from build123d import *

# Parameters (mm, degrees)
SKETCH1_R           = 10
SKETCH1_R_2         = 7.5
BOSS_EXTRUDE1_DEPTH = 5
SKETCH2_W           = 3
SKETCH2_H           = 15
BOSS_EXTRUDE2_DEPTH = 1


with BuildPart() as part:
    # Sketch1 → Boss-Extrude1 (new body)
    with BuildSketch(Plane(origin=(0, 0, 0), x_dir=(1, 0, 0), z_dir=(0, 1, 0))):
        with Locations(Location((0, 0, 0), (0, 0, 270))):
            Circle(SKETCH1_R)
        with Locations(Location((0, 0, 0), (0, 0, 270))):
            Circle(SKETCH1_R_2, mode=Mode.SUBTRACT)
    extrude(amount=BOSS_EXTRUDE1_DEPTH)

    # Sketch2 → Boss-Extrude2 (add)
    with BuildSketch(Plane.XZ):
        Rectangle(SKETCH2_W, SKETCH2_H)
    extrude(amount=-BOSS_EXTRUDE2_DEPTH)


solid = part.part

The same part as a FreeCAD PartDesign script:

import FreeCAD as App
import Part
import Sketcher
from FreeCAD import Vector
Q = App.Units.Quantity


def add_polygon(sketch, points):
    """Adds a closed chain of lines whose ends are joined by coincident constraints."""
    first, n = sketch.GeometryCount, len(points)
    for a, b in zip(points, points[1:] + points[:1]):
        sketch.addGeometry(Part.LineSegment(App.Vector(*a, 0), App.Vector(*b, 0)), False)
    for i in range(n):
        sketch.addConstraint(Sketcher.Constraint("Coincident", first + i, 2, first + (i + 1) % n, 1))

doc = App.newDocument("Part")
body = doc.addObject("PartDesign::Body", "Body")

# Sketch on XZ plane
sketch1 = doc.addObject("Sketcher::SketchObject", "Sketch")
body.addObject(sketch1)
sketch1.AttachmentSupport = (doc.XZ_Plane, [""])
sketch1.MapMode = "FlatFace"
sketch1.addGeometry([
    Part.Circle(Vector(0, 0, 0), Vector(0, 0, 1), 10),
    Part.Circle(Vector(0, 0, 0), Vector(0, 0, 1), 7.5),
], False)
sketch1.addConstraint([
    Sketcher.Constraint("Coincident", 0, 3, -1, 1),
    Sketcher.Constraint("Coincident", 1, 3, -1, 1),
    Sketcher.Constraint("Diameter", 0, Q("20 mm")),
    Sketcher.Constraint("Diameter", 1, Q("15 mm")),
])
pad1 = doc.addObject("PartDesign::Pad", "Pad")
body.addObject(pad1)
pad1.Profile = sketch1
pad1.Length = 5
pad1.Reversed = True

# Sketch on XZ plane
sketch2 = doc.addObject("Sketcher::SketchObject", "Sketch001")
body.addObject(sketch2)
sketch2.AttachmentSupport = (doc.XZ_Plane, [""])
sketch2.MapMode = "FlatFace"
add_polygon(sketch2, [(-1.5, 7.5), (-1.5, -7.5), (1.5, -7.5), (1.5, 7.5)])  # lines 0-3
sketch2.addConstraint([
    Sketcher.Constraint("Vertical", 0),
    Sketcher.Constraint("Horizontal", 1),
    Sketcher.Constraint("Vertical", 2),
    Sketcher.Constraint("Horizontal", 3),
    Sketcher.Constraint("Symmetric", 0, 2, 2, 2, -1, 1),
    Sketcher.Constraint("DistanceX", 1, 1, 1, 2, Q("3 mm")),
    Sketcher.Constraint("DistanceY", 0, 2, 0, 1, Q("15 mm")),
])
pad2 = doc.addObject("PartDesign::Pad", "Pad001")
body.addObject(pad2)
pad2.Profile = sketch2
pad2.Length = 1
pad2.Reversed = True

doc.recompute()
